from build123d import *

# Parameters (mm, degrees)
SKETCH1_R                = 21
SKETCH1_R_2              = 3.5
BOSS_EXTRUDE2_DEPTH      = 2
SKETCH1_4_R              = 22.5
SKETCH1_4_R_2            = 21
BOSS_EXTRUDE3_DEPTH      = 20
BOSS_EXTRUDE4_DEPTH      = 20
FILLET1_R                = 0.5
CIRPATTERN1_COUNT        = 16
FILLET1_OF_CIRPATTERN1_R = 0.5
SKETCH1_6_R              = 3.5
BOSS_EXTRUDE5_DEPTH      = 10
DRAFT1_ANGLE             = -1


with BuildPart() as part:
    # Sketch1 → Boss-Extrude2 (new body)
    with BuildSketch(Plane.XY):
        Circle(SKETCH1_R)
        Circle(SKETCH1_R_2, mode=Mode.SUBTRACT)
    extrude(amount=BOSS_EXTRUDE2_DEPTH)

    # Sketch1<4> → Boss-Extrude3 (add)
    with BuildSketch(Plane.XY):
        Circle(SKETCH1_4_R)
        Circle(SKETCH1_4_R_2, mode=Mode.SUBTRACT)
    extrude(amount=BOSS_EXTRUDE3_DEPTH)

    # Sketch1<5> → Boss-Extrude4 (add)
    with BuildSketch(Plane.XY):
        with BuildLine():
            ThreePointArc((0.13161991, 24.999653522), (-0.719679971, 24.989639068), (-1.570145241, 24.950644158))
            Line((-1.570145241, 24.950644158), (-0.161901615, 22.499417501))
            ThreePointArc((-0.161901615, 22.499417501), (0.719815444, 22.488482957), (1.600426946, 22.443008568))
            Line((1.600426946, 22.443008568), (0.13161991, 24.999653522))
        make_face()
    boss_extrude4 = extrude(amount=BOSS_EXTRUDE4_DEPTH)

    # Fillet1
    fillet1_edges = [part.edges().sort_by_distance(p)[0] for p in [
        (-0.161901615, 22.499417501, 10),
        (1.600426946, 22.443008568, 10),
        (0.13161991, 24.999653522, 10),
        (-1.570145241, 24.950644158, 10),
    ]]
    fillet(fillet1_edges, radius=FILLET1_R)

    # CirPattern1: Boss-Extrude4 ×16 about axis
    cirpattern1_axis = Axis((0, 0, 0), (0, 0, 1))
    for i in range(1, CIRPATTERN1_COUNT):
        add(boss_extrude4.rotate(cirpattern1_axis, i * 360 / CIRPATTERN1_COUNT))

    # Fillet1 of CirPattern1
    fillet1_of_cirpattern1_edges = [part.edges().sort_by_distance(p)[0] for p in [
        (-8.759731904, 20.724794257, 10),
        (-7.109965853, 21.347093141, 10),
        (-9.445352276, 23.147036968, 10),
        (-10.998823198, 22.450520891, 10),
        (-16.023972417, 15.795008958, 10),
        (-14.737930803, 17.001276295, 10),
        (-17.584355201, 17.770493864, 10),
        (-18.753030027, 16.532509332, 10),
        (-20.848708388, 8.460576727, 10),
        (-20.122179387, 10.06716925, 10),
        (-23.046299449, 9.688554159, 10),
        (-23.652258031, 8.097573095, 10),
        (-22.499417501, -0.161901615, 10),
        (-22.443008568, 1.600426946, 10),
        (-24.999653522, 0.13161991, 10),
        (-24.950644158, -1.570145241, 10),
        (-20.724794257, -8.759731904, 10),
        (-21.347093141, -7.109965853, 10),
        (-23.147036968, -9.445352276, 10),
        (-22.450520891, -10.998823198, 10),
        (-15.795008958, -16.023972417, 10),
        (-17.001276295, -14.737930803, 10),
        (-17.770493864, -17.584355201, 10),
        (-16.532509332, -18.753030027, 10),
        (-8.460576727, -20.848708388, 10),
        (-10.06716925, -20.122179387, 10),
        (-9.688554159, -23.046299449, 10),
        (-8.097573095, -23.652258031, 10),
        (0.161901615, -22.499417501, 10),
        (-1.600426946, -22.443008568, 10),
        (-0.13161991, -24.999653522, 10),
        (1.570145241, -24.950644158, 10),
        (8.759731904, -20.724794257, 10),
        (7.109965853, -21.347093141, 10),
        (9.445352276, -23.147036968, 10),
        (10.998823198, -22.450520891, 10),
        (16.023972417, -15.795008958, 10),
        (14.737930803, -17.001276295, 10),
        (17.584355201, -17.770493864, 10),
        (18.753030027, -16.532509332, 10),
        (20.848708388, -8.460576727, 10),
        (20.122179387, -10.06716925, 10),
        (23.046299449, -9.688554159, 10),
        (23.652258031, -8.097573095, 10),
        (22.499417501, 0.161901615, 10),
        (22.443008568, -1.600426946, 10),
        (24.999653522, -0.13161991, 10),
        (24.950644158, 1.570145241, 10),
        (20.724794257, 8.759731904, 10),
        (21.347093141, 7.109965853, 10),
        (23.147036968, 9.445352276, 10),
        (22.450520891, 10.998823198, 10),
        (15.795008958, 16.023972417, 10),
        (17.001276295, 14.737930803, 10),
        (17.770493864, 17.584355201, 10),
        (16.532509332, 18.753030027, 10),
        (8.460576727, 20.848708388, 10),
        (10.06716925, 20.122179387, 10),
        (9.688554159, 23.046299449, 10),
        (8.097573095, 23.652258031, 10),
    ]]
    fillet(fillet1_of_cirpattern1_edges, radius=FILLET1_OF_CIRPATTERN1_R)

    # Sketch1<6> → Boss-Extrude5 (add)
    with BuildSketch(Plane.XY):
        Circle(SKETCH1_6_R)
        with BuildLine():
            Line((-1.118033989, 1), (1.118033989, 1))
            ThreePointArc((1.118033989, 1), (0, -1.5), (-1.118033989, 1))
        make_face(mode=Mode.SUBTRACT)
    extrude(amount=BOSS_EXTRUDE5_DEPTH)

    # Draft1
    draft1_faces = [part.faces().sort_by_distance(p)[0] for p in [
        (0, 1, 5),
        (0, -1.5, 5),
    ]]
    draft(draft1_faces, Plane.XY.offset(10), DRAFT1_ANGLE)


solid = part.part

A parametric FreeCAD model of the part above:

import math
import FreeCAD as App
import Part
import Sketcher
from FreeCAD import Vector


def edges_at(feature, points):
    """Names of the edges that pass closest to the given points."""
    edges = feature.Shape.Edges
    near = lambda p: min(range(len(edges)), key=lambda i: edges[i].distToShape(Part.Vertex(*p))[0])
    return sorted({f"Edge{near(p) + 1}" for p in points})


def faces_at(feature, points):
    """Names of the faces that lie closest to the given points."""
    faces = feature.Shape.Faces
    near = lambda p: min(range(len(faces)), key=lambda i: faces[i].distToShape(Part.Vertex(*p))[0])
    return sorted({f"Face{near(p) + 1}" for p in points})

doc = App.newDocument("Part")
body = doc.addObject("PartDesign::Body", "Body")

sketch1 = body.newObject("Sketcher::SketchObject", "Sketch")
sketch1.AttachmentSupport = (doc.getObject("XY_Plane"), [""])
sketch1.MapMode = "FlatFace"
sketch1.addGeometry(Part.Circle(Vector(0, 0, 0), Vector(0, 0, 1), 21), False)
sketch1.addGeometry(Part.Circle(Vector(0, 0, 0), Vector(0, 0, 1), 3.5), False)
sketch1.addConstraint(Sketcher.Constraint("Coincident", 0, 3, -1, 1))
sketch1.addConstraint(Sketcher.Constraint("Coincident", 1, 3, -1, 1))
sketch1.addConstraint(Sketcher.Constraint("Diameter", 0, 42.0))
sketch1.addConstraint(Sketcher.Constraint("Diameter", 1, 7.0))
pad1 = body.newObject("PartDesign::Pad", "Pad")
pad1.Profile = sketch1
pad1.Length = 2

sketch2 = body.newObject("Sketcher::SketchObject", "Sketch001")
sketch2.AttachmentSupport = (doc.getObject("XY_Plane"), [""])
sketch2.MapMode = "FlatFace"
sketch2.addGeometry(Part.Circle(Vector(0, 0, 0), Vector(0, 0, 1), 22.5), False)
sketch2.addGeometry(Part.Circle(Vector(0, 0, 0), Vector(0, 0, 1), 21), False)
sketch2.addConstraint(Sketcher.Constraint("Coincident", 0, 3, -1, 1))
sketch2.addConstraint(Sketcher.Constraint("Coincident", 1, 3, -1, 1))
sketch2.addConstraint(Sketcher.Constraint("Diameter", 0, 45.0))
sketch2.addConstraint(Sketcher.Constraint("Diameter", 1, 42.0))
pad2 = body.newObject("PartDesign::Pad", "Pad001")
pad2.Profile = sketch2
pad2.Length = 20

sketch3 = body.newObject("Sketcher::SketchObject", "Sketch002")
sketch3.AttachmentSupport = (doc.getObject("XY_Plane"), [""])
sketch3.MapMode = "FlatFace"
sketch3.addGeometry(Part.ArcOfCircle(Part.Circle(Vector(0, 0, 0), Vector(0, 0, 1), 25), math.radians(89.698348), math.radians(93.600878)), False)
sketch3.addGeometry(Part.LineSegment(Vector(-1.570145, 24.950644, 0), Vector(-0.161902, 22.499418, 0)), False)
sketch3.addGeometry(Part.ArcOfCircle(Part.Circle(Vector(0, -0.000001, 0), Vector(0, 0, 1), 22.500001), math.radians(85.921102), math.radians(90.412283)), False)
sketch3.addGeometry(Part.LineSegment(Vector(1.600427, 22.443009, 0), Vector(0.13162, 24.999654, 0)), False)
sketch3.addConstraint(Sketcher.Constraint("Coincident", 0, 2, 1, 1))
sketch3.addConstraint(Sketcher.Constraint("Coincident", 1, 2, 2, 2))
sketch3.addConstraint(Sketcher.Constraint("Coincident", 2, 1, 3, 1))
sketch3.addConstraint(Sketcher.Constraint("Coincident", 3, 2, 0, 1))
sketch3.addConstraint(Sketcher.Constraint("Coincident", 0, 3, -1, 1))
sketch3.addConstraint(Sketcher.Constraint("Coincident", 2, 3, -1, 1))
sketch3.addConstraint(Sketcher.Constraint("Parallel", 1, 3))
sketch3.addConstraint(Sketcher.Constraint("Radius", 0, 25.0))
sketch3.addConstraint(Sketcher.Constraint("Radius", 2, 22.500001))
sketch3.addConstraint(Sketcher.Constraint("DistanceX", 1, 2, -1, 1, 0.161902))
sketch3.addConstraint(Sketcher.Constraint("Distance", 3, 2.94853))
sketch3.addConstraint(Sketcher.Constraint("DistanceY", -1, 1, 2, 1, 22.443009))
pad3 = body.newObject("PartDesign::Pad", "Pad002")
pad3.Profile = sketch3
pad3.Length = 20
doc.recompute()

fillet = body.newObject("PartDesign::Fillet", "Fillet")
fillet.Base = (pad3, edges_at(pad3, [
    (-0.162, 22.499, 10),
    (1.6, 22.443, 10),
    (0.132, 25, 10),
    (-1.57, 24.951, 10),
]))
fillet.Radius = 0.5
doc.recompute()

polarpattern = body.newObject("PartDesign::PolarPattern", "PolarPattern")
polarpattern.Originals = [pad3]
polarpattern.Axis = (doc.getObject("Z_Axis"), [""])
polarpattern.Angle = 360
polarpattern.Occurrences = 16
body.Tip = polarpattern
doc.recompute()

fillet2 = body.newObject("PartDesign::Fillet", "Fillet001")
fillet2.Base = (polarpattern, edges_at(polarpattern, [
    (-8.76, 20.725, 10),
    (-7.11, 21.347, 10),
    (-9.445, 23.147, 10),
    (-10.999, 22.451, 10),
    (-16.024, 15.795, 10),
    (-14.738, 17.001, 10),
    (-17.584, 17.77, 10),
    (-18.753, 16.533, 10),
    (-20.849, 8.461, 10),
    (-20.122, 10.067, 10),
    (-23.046, 9.689, 10),
    (-23.652, 8.098, 10),
    (-22.499, -0.162, 10),
    (-22.443, 1.6, 10),
    (-25, 0.132, 10),
    (-24.951, -1.57, 10),
    (-20.725, -8.76, 10),
    (-21.347, -7.11, 10),
    (-23.147, -9.445, 10),
    (-22.451, -10.999, 10),
    (-15.795, -16.024, 10),
    (-17.001, -14.738, 10),
    (-17.77, -17.584, 10),
    (-16.533, -18.753, 10),
    (-8.461, -20.849, 10),
    (-10.067, -20.122, 10),
    (-9.689, -23.046, 10),
    (-8.098, -23.652, 10),
    (0.162, -22.499, 10),
    (-1.6, -22.443, 10),
    (-0.132, -25, 10),
    (1.57, -24.951, 10),
    (8.76, -20.725, 10),
    (7.11, -21.347, 10),
    (9.445, -23.147, 10),
    (10.999, -22.451, 10),
    (16.024, -15.795, 10),
    (14.738, -17.001, 10),
    (17.584, -17.77, 10),
    (18.753, -16.533, 10),
    (20.849, -8.461, 10),
    (20.122, -10.067, 10),
    (23.046, -9.689, 10),
    (23.652, -8.098, 10),
    (22.499, 0.162, 10),
    (22.443, -1.6, 10),
    (25, -0.132, 10),
    (24.951, 1.57, 10),
    (20.725, 8.76, 10),
    (21.347, 7.11, 10),
    (23.147, 9.445, 10),
    (22.451, 10.999, 10),
    (15.795, 16.024, 10),
    (17.001, 14.738, 10),
    (17.77, 17.584, 10),
    (16.533, 18.753, 10),
    (8.461, 20.849, 10),
    (10.067, 20.122, 10),
    (9.689, 23.046, 10),
    (8.098, 23.652, 10),
]))
fillet2.Radius = 0.5

sketch4 = body.newObject("Sketcher::SketchObject", "Sketch003")
sketch4.AttachmentSupport = (doc.getObject("XY_Plane"), [""])
sketch4.MapMode = "FlatFace"
sketch4.addGeometry(Part.Circle(Vector(0, 0, 0), Vector(0, 0, 1), 3.5), False)
sketch4.addGeometry(Part.ArcOfCircle(Part.Circle(Vector(0, 0, 0), Vector(0, 0, 1), 1.5), math.radians(138.189685), math.radians(401.810315)), False)
sketch4.addGeometry(Part.LineSegment(Vector(-1.118034, 1, 0), Vector(1.118034, 1, 0)), False)
sketch4.addConstraint(Sketcher.Constraint("Coincident", 1, 1, 2, 1))
sketch4.addConstraint(Sketcher.Constraint("Coincident", 2, 2, 1, 2))
sketch4.addConstraint(Sketcher.Constraint("Horizontal", 2))
sketch4.addConstraint(Sketcher.Constraint("Coincident", 0, 3, -1, 1))
sketch4.addConstraint(Sketcher.Constraint("Coincident", 1, 3, -1, 1))
sketch4.addConstraint(Sketcher.Constraint("Diameter", 0, 7.0))
sketch4.addConstraint(Sketcher.Constraint("Radius", 1, 1.5))
sketch4.addConstraint(Sketcher.Constraint("DistanceY", -1, 1, 1, 1, 1.0))
pad4 = body.newObject("PartDesign::Pad", "Pad003")
pad4.Profile = sketch4
pad4.Length = 10
doc.recompute()

datumplane = body.newObject("PartDesign::Plane", "DatumPlane")
datumplane.AttachmentSupport = (doc.getObject("XY_Plane"), [""])
datumplane.MapMode = "FlatFace"
datumplane.AttachmentOffset = App.Placement(Vector(0, 0, 10), App.Rotation())
draft = body.newObject("PartDesign::Draft", "Draft")
draft.Base = (pad4, faces_at(pad4, [(0, 1, 5), (0, -1.5, 5)]))
draft.NeutralPlane = (datumplane, [""])
draft.Angle = 1
draft.Reversed = True

doc.recompute()
